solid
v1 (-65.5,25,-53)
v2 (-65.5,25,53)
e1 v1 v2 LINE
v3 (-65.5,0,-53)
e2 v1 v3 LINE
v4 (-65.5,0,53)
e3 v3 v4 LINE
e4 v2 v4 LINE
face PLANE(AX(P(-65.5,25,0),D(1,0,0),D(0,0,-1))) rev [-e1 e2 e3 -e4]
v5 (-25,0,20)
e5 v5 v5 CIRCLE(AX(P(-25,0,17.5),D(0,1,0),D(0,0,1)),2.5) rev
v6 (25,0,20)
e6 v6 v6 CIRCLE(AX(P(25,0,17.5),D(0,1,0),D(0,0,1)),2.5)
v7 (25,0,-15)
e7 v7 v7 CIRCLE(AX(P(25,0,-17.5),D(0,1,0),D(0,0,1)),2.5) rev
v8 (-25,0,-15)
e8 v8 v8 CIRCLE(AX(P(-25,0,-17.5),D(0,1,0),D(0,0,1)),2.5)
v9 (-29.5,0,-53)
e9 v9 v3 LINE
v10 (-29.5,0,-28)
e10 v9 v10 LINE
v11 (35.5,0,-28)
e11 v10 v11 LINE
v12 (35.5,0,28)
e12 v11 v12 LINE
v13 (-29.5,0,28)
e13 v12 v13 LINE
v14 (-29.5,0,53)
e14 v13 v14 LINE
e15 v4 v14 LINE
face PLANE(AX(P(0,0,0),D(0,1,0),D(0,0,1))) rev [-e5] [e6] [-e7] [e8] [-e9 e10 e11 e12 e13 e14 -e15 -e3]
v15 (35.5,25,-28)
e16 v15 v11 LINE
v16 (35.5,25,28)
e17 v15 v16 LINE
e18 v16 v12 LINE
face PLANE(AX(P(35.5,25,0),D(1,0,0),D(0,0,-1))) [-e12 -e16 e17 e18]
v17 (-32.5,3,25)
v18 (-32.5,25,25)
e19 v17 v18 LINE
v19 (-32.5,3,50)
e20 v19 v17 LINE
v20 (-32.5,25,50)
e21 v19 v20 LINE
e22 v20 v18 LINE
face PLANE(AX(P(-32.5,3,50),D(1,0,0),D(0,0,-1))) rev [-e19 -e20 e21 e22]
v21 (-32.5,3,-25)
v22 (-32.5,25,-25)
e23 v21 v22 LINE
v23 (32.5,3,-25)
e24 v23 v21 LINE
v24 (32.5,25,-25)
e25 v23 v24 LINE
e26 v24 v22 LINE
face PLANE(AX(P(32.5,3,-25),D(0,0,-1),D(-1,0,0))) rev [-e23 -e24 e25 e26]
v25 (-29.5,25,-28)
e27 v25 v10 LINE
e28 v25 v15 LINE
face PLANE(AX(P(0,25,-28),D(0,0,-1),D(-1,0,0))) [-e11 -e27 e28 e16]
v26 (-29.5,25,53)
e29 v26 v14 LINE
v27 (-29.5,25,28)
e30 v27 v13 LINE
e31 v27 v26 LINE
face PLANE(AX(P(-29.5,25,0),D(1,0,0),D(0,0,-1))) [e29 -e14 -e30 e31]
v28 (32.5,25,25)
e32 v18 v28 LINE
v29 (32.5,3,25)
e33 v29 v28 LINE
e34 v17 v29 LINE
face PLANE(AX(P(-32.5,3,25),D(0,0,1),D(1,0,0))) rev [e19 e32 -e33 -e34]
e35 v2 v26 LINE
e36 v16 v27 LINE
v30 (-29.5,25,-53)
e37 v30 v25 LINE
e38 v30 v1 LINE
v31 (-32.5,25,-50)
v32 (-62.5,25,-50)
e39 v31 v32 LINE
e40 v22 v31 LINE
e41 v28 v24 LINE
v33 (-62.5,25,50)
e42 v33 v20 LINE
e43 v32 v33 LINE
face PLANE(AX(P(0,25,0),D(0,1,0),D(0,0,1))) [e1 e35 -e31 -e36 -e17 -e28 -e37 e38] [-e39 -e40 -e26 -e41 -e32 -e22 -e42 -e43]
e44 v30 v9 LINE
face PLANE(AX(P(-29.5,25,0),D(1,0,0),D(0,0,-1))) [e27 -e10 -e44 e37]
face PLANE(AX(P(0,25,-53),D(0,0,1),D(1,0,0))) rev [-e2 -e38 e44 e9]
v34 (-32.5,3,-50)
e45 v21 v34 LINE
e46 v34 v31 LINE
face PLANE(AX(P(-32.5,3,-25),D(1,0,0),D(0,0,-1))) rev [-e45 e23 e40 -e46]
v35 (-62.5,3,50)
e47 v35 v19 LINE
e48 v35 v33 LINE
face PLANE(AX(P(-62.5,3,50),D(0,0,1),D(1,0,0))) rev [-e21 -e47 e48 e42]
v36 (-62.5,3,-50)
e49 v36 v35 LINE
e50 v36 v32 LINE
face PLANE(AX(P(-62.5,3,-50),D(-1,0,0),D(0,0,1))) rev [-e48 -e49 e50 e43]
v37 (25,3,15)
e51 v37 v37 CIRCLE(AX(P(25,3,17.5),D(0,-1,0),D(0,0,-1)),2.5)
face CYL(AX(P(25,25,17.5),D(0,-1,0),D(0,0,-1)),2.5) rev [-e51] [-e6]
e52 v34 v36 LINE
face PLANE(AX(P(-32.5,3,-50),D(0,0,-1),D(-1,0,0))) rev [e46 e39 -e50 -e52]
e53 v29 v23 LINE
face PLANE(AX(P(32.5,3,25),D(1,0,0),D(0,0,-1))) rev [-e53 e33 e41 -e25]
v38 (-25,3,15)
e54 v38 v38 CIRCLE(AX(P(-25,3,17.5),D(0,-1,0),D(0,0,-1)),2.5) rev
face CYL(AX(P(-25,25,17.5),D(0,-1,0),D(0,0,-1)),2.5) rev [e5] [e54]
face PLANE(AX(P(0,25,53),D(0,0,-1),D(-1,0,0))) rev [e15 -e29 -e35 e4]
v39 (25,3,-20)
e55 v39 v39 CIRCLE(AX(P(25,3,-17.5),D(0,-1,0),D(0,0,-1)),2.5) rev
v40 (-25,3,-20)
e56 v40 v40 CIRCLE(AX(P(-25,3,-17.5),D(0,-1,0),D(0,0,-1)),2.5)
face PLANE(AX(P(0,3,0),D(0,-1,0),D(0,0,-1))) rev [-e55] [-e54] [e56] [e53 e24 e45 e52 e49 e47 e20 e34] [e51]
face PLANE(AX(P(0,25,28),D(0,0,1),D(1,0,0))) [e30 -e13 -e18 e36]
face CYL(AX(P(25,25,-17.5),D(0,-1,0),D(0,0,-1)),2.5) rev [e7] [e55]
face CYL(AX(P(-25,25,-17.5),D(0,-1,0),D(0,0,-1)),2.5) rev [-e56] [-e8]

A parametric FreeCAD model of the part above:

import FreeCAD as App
import Part
import Sketcher
Q = App.Units.Quantity

doc = App.newDocument("Part")
body = doc.addObject("PartDesign::Body", "Body")

# Sketch on XZ plane
sketch1 = doc.addObject("Sketcher::SketchObject", "Sketch")
body.addObject(sketch1)
sketch1.AttachmentSupport = (doc.XZ_Plane, [""])
sketch1.MapMode = "FlatFace"
sketch1.addGeometry([
    Part.LineSegment(App.Vector(35.5, -28, 0), App.Vector(-29.5, -28, 0)),  # 0
    Part.LineSegment(App.Vector(-29.5, -28, 0), App.Vector(-29.5, -53, 0)),  # 1
    Part.LineSegment(App.Vector(-29.5, -53, 0), App.Vector(-65.5, -53, 0)),  # 2
    Part.LineSegment(App.Vector(-65.5, -53, 0), App.Vector(-65.5, 53, 0)),  # 3
    Part.LineSegment(App.Vector(-65.5, 53, 0), App.Vector(-29.5, 53, 0)),  # 4
    Part.LineSegment(App.Vector(-29.5, 53, 0), App.Vector(-29.5, 28, 0)),  # 5
    Part.LineSegment(App.Vector(-29.5, 28, 0), App.Vector(35.5, 28, 0)),  # 6
    Part.LineSegment(App.Vector(35.5, 28, 0), App.Vector(35.5, -28, 0)),  # 7
    Part.Circle(App.Vector(25, 17.5, 0), App.Vector(0, 0, 1), 2.5),  # 8
    Part.Circle(App.Vector(-25, 17.5, 0), App.Vector(0, 0, 1), 2.5),  # 9
    Part.Circle(App.Vector(25, -17.5, 0), App.Vector(0, 0, 1), 2.5),  # 10
    Part.Circle(App.Vector(-25, -17.5, 0), App.Vector(0, 0, 1), 2.5),  # 11
], False)
sketch1.addConstraint([
    Sketcher.Constraint("Coincident", 0, 2, 1, 1),
    Sketcher.Constraint("Coincident", 1, 2, 2, 1),
    Sketcher.Constraint("Coincident", 2, 2, 3, 1),
    Sketcher.Constraint("Coincident", 3, 2, 4, 1),
    Sketcher.Constraint("Coincident", 4, 2, 5, 1),
    Sketcher.Constraint("Coincident", 5, 2, 6, 1),
    Sketcher.Constraint("Coincident", 6, 2, 7, 1),
    Sketcher.Constraint("Coincident", 7, 2, 0, 1),
    Sketcher.Constraint("Horizontal", 0),
    Sketcher.Constraint("Vertical", 1),
    Sketcher.Constraint("Horizontal", 2),
    Sketcher.Constraint("Vertical", 3),
    Sketcher.Constraint("Horizontal", 4),
    Sketcher.Constraint("Vertical", 5),
    Sketcher.Constraint("Horizontal", 6),
    Sketcher.Constraint("Vertical", 7),
    Sketcher.Constraint("Equal", 8, 9),
    Sketcher.Constraint("Equal", 9, 10),
    Sketcher.Constraint("Equal", 10, 11),
    Sketcher.Constraint("Symmetric", 9, 3, 10, 3, -1, 1),
    Sketcher.Constraint("Symmetric", 8, 3, 11, 3, -1, 1),
    Sketcher.Constraint("Symmetric", 8, 3, 9, 3, -2),
    Sketcher.Constraint("Symmetric", 1, 2, 4, 2, -1),
    Sketcher.Constraint("Equal", 1, 5),
    Sketcher.Constraint("Diameter", 8, Q("5 mm")),
    Sketcher.Constraint("DistanceX", 0, 2, 0, 1, Q("65 mm")),
    Sketcher.Constraint("DistanceX", 2, 2, 2, 1, Q("36 mm")),
    Sketcher.Constraint("DistanceY", 1, 2, 1, 1, Q("25 mm")),
    Sketcher.Constraint("DistanceY", 3, 1, 3, 2, Q("106 mm")),
    Sketcher.Constraint("DistanceX", -1, 1, 8, 3, Q("25 mm")),
    Sketcher.Constraint("DistanceY", 10, 3, 8, 3, Q("35 mm")),
    Sketcher.Constraint("DistanceX", 0, 2, -1, 1, Q("29.5 mm")),
])
pad1 = doc.addObject("PartDesign::Pad", "Pad")
body.addObject(pad1)
pad1.Profile = sketch1
pad1.Length = 25
pad1.Reversed = True

# Sketch on XZ plane
sketch2 = doc.addObject("Sketcher::SketchObject", "Sketch001")
body.addObject(sketch2)
sketch2.AttachmentSupport = (doc.XZ_Plane, [""])
sketch2.MapMode = "FlatFace"
sketch2.AttachmentOffset = App.Placement(App.Vector(0, 0, -25), App.Rotation())
sketch2.addGeometry([
    Part.LineSegment(App.Vector(-32.5, -25, 0), App.Vector(-32.5, -50, 0)),  # 0
    Part.LineSegment(App.Vector(-32.5, -50, 0), App.Vector(-62.5, -50, 0)),  # 1
    Part.LineSegment(App.Vector(-62.5, -50, 0), App.Vector(-62.5, 50, 0)),  # 2
    Part.LineSegment(App.Vector(-62.5, 50, 0), App.Vector(-32.5, 50, 0)),  # 3
    Part.LineSegment(App.Vector(-32.5, 50, 0), App.Vector(-32.5, 25, 0)),  # 4
    Part.LineSegment(App.Vector(-32.5, 25, 0), App.Vector(32.5, 25, 0)),  # 5
    Part.LineSegment(App.Vector(32.5, 25, 0), App.Vector(32.5, -25, 0)),  # 6
    Part.LineSegment(App.Vector(32.5, -25, 0), App.Vector(-32.5, -25, 0)),  # 7
], False)
sketch2.addConstraint([
    Sketcher.Constraint("Coincident", 0, 2, 1, 1),
    Sketcher.Constraint("Coincident", 1, 2, 2, 1),
    Sketcher.Constraint("Coincident", 2, 2, 3, 1),
    Sketcher.Constraint("Coincident", 3, 2, 4, 1),
    Sketcher.Constraint("Coincident", 4, 2, 5, 1),
    Sketcher.Constraint("Coincident", 5, 2, 6, 1),
    Sketcher.Constraint("Coincident", 6, 2, 7, 1),
    Sketcher.Constraint("Coincident", 7, 2, 0, 1),
    Sketcher.Constraint("Vertical", 0),
    Sketcher.Constraint("Horizontal", 1),
    Sketcher.Constraint("Vertical", 2),
    Sketcher.Constraint("Horizontal", 3),
    Sketcher.Constraint("Vertical", 4),
    Sketcher.Constraint("Horizontal", 5),
    Sketcher.Constraint("Vertical", 6),
    Sketcher.Constraint("Horizontal", 7),
    Sketcher.Constraint("Symmetric", 4, 2, 6, 2, -1, 1),
    Sketcher.Constraint("Symmetric", 0, 2, 3, 2, -1),
    Sketcher.Constraint("DistanceX", 1, 2, 1, 1, Q("30 mm")),
    Sketcher.Constraint("DistanceX", 5, 1, 5, 2, Q("65 mm")),
    Sketcher.Constraint("DistanceY", 0, 2, 0, 1, Q("25 mm")),
    Sketcher.Constraint("DistanceY", 2, 1, 2, 2, Q("100 mm")),
])
pocket1 = doc.addObject("PartDesign::Pocket", "Pocket")
body.addObject(pocket1)
pocket1.Profile = sketch2
pocket1.Length = 22
pocket1.Reversed = True

doc.recompute()
